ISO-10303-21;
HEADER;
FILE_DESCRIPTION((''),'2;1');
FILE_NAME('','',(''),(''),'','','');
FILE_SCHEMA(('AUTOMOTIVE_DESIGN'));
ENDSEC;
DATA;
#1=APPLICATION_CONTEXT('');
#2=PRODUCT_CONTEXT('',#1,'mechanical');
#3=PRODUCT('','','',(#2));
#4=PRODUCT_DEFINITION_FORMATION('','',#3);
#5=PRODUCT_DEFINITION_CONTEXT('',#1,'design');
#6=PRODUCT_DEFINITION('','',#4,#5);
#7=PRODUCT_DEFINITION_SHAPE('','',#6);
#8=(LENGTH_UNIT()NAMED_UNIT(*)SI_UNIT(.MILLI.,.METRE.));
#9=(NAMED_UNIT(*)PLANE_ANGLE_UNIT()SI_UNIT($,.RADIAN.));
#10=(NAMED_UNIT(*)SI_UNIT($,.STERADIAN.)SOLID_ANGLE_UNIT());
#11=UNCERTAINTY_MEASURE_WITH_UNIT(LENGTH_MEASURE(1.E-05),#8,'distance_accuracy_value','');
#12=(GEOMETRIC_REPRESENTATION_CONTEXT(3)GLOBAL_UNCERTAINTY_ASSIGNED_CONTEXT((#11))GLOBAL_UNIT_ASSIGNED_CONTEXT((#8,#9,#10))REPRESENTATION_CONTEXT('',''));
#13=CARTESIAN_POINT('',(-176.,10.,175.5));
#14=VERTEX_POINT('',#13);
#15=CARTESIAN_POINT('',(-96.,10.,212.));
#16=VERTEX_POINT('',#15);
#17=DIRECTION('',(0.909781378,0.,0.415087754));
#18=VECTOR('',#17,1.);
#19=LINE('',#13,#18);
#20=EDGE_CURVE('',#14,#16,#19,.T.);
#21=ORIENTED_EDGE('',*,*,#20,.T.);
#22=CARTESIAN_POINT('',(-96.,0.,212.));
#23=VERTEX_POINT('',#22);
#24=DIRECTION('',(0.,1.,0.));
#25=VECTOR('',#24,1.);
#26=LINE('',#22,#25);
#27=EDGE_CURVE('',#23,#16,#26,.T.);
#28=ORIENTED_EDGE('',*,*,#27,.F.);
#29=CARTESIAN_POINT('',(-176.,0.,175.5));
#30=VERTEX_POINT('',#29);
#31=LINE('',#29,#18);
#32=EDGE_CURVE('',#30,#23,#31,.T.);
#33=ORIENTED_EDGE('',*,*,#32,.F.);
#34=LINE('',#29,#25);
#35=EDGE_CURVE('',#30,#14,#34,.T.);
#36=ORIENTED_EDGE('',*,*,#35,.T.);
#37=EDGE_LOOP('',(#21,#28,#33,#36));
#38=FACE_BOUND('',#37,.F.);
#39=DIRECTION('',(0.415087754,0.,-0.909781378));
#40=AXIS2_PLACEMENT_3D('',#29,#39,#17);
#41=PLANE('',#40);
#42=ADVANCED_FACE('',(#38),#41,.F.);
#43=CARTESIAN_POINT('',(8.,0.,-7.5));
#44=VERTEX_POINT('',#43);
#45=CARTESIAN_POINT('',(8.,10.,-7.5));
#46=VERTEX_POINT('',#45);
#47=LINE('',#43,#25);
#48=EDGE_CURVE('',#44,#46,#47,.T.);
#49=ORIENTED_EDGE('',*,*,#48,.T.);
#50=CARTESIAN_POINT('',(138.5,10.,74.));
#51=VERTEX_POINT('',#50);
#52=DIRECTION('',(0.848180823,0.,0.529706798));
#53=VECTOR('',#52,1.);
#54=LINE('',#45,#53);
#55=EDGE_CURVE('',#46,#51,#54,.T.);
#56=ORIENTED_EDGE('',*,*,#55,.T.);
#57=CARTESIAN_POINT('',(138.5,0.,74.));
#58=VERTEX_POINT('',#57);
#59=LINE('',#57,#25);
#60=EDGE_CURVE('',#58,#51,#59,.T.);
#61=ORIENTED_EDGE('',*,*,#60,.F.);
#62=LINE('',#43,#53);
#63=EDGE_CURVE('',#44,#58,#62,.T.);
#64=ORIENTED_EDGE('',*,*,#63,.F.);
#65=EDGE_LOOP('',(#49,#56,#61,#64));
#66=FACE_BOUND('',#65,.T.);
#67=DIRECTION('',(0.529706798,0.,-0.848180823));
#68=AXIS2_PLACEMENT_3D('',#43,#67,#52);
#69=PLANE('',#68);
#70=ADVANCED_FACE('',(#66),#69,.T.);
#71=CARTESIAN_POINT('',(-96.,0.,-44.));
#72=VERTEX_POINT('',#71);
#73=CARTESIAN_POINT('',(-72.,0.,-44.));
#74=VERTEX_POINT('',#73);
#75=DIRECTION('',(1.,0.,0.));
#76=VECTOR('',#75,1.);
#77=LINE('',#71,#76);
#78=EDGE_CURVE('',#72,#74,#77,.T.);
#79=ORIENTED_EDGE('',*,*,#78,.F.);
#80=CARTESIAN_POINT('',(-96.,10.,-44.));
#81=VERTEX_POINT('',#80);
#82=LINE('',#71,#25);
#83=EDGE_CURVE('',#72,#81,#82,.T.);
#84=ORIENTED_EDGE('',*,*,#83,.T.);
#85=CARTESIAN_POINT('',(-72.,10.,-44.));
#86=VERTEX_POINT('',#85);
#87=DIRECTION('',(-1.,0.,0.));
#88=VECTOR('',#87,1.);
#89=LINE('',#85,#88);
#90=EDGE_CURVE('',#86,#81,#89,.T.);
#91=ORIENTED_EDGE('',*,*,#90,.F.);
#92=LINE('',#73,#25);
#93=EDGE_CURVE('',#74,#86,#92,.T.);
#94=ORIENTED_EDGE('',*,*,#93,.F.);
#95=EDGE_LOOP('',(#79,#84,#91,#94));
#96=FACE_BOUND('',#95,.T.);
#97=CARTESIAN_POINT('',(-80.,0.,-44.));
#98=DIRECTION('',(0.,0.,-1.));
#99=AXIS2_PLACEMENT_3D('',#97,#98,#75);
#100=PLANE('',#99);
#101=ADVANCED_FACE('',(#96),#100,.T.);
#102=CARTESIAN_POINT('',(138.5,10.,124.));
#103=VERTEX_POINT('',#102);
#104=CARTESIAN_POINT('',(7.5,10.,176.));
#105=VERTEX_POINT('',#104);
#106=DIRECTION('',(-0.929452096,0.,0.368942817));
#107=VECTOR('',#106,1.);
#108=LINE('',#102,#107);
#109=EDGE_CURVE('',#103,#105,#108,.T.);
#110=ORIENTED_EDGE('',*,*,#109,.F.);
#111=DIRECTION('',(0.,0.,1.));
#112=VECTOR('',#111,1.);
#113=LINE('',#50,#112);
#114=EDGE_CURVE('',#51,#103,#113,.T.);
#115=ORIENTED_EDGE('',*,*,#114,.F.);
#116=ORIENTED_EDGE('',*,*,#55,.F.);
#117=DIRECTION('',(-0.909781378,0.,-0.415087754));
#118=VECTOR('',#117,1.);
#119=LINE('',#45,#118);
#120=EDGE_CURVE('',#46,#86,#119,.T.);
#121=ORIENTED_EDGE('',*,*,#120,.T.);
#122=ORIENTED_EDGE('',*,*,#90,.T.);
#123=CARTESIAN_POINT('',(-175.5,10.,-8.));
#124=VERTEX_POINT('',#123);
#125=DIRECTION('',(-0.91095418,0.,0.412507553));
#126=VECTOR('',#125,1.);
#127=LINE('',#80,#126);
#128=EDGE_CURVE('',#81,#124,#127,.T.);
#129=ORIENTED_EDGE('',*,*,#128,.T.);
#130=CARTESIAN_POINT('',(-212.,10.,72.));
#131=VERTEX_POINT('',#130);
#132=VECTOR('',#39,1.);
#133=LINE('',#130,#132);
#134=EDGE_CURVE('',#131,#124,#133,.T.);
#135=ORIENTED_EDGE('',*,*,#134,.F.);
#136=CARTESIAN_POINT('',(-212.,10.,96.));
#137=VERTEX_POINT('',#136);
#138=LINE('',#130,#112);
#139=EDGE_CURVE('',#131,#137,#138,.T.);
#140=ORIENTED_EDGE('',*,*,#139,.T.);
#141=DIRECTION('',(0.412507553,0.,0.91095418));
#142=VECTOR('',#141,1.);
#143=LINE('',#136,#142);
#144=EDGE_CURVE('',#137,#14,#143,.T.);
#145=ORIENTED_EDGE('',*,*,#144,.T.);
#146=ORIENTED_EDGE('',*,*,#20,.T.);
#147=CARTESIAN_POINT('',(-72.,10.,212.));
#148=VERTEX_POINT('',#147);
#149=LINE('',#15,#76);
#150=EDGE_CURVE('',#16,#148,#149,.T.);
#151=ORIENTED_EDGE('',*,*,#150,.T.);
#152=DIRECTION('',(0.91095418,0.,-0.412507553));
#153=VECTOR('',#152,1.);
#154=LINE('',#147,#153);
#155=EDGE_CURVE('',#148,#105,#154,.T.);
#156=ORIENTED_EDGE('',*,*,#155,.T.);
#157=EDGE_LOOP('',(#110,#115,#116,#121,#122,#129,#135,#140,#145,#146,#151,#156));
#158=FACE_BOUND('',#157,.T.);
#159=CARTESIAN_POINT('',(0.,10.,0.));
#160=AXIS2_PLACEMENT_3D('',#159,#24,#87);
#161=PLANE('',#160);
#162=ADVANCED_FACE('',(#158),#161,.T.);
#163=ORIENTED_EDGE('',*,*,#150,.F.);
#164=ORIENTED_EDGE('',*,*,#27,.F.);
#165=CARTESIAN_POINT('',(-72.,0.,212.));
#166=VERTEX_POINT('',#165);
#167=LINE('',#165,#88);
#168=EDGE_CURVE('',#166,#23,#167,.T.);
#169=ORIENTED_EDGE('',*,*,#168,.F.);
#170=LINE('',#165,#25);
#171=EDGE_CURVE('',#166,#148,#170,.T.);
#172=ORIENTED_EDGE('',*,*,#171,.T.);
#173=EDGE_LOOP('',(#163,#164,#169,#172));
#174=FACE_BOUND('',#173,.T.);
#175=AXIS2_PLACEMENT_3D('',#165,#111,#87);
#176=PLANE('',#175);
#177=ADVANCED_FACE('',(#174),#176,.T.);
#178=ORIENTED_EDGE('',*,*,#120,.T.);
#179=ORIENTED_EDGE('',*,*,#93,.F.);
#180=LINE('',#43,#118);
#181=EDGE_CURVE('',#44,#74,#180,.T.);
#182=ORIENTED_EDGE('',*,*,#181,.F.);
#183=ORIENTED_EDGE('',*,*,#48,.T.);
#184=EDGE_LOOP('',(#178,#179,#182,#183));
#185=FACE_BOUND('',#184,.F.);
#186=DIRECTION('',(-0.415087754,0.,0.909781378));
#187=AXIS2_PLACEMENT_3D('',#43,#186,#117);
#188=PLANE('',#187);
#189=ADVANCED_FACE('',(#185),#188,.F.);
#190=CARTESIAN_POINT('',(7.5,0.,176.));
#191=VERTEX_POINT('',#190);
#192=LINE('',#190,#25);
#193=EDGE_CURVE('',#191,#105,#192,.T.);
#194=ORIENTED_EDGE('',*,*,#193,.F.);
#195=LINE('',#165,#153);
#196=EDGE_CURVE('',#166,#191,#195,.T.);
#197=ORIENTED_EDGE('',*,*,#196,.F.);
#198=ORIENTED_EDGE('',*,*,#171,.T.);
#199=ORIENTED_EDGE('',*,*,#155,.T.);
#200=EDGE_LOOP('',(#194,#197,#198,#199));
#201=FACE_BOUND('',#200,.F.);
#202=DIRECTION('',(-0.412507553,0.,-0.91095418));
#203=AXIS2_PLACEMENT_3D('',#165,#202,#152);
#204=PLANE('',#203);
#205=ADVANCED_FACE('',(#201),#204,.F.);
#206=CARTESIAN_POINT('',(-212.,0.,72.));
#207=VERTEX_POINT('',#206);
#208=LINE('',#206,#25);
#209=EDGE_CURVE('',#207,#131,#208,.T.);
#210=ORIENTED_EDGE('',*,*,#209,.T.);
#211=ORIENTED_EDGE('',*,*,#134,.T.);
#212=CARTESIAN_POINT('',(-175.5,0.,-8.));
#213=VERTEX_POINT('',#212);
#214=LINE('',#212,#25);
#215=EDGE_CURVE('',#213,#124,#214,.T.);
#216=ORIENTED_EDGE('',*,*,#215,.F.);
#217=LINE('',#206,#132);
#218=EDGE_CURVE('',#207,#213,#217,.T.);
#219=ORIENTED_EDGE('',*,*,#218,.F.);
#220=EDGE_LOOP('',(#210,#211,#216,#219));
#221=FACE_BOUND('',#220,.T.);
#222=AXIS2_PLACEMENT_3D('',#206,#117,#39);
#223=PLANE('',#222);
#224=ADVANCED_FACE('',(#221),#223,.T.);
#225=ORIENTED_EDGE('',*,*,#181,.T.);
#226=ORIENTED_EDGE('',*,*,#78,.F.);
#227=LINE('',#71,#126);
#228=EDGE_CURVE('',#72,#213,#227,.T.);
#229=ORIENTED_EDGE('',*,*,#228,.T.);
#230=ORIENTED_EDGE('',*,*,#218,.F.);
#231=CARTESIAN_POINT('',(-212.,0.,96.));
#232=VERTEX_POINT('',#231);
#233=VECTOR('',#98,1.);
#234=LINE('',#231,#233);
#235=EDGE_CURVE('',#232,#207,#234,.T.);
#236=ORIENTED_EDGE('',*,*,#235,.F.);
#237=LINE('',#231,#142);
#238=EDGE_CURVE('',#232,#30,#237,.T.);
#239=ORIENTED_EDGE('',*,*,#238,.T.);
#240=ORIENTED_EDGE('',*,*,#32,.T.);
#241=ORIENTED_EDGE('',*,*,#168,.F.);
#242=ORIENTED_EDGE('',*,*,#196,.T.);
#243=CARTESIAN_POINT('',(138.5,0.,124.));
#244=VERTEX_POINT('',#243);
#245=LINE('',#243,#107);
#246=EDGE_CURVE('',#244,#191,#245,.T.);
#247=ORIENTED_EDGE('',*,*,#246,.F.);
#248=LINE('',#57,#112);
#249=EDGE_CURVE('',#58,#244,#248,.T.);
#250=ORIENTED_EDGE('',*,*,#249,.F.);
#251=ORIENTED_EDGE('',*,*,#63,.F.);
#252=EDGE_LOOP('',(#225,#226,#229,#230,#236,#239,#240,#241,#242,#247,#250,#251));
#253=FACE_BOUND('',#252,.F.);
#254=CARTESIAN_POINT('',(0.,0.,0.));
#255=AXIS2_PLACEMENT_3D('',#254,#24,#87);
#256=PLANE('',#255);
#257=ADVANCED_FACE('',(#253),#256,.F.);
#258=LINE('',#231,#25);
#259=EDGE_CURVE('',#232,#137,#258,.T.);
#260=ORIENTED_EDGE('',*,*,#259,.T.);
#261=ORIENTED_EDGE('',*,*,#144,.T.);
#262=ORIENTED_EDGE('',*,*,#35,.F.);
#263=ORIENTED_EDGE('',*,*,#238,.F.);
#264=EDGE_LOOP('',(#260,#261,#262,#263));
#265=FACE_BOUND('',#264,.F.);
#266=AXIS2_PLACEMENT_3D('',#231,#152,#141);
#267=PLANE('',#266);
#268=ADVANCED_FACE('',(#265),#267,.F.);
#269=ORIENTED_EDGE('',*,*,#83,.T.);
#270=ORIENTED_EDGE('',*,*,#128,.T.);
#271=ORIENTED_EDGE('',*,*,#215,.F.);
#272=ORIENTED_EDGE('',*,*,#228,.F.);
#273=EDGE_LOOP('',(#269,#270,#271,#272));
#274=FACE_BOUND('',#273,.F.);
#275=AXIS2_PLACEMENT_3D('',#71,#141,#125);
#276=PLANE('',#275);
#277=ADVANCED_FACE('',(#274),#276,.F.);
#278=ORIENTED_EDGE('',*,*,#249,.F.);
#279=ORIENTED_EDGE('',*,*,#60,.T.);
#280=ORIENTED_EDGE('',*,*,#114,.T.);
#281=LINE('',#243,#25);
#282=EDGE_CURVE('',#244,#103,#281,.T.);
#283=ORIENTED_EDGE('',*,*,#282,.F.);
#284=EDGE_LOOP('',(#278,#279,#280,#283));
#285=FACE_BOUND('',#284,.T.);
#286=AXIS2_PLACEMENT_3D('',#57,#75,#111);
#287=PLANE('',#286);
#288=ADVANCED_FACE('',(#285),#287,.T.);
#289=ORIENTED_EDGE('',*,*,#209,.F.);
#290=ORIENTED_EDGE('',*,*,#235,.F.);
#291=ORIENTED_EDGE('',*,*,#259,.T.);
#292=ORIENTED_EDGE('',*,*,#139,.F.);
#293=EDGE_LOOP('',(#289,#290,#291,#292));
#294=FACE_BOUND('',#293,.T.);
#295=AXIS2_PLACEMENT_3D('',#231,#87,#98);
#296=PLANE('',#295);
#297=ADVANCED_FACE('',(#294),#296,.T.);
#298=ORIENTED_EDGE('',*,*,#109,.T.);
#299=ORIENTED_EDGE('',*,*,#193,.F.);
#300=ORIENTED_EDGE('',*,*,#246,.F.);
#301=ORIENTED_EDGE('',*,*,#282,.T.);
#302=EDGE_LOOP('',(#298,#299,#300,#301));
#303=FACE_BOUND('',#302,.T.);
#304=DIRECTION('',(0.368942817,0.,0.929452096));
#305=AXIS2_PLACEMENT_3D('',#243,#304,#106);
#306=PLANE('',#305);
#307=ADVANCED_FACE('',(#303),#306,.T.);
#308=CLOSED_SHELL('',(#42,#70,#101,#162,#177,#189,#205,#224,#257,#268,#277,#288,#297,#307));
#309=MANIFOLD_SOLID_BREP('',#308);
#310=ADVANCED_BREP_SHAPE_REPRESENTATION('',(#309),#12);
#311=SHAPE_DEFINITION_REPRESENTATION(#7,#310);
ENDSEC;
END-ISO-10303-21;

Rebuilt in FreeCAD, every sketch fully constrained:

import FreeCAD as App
import Part
import Sketcher

V = App.Vector
Q = App.Units.Quantity


def add_polygon(sketch, points):
    """Adds a closed chain of lines whose ends are joined by coincident constraints."""
    first, n = sketch.GeometryCount, len(points)
    for a, b in zip(points, points[1:] + points[:1]):
        sketch.addGeometry(Part.LineSegment(App.Vector(*a, 0), App.Vector(*b, 0)), False)
    for i in range(n):
        sketch.addConstraint(Sketcher.Constraint("Coincident", first + i, 2, first + (i + 1) % n, 1))

doc = App.newDocument("Part")
body = doc.addObject("PartDesign::Body", "Body")

# Sketch on XZ plane
sketch1 = body.newObject("Sketcher::SketchObject", "Sketch")
sketch1.AttachmentSupport = (doc.getObject("XZ_Plane"), [""])
sketch1.MapMode = "FlatFace"
add_polygon(sketch1, [(138, 74), (8, -8), (-72, -44), (-96, -44), (-176, -8), (-212, 72), (-212, 96), (-176, 176), (-96, 212), (-72, 212), (8, 176), (138, 124)])  # lines 0-11
sketch1.addConstraint([
    Sketcher.Constraint("Horizontal", 2),
    Sketcher.Constraint("Vertical", 5),
    Sketcher.Constraint("Horizontal", 8),
    Sketcher.Constraint("Vertical", 11),
    Sketcher.Constraint("Perpendicular", 1, 4),
    Sketcher.Constraint("Perpendicular", 3, 6),
    Sketcher.Constraint("Perpendicular", 4, 7),
    Sketcher.Constraint("Perpendicular", 6, 9),
    Sketcher.Constraint("Vertical", 2, 2, 7, 2),
    Sketcher.Constraint("Vertical", 1, 2, 8, 2),
    Sketcher.Constraint("Equal", 8, 5),
    Sketcher.Constraint("Equal", 1, 4),
    Sketcher.Constraint("Equal", 3, 6),
    Sketcher.Constraint("Equal", 4, 7),
    Sketcher.Constraint("Equal", 6, 9),
    Sketcher.Constraint("DistanceX", 2, 2, 2, 1, Q("24 mm")),
    Sketcher.Constraint("DistanceY", 11, 2, 11, 1, Q("50 mm")),
    Sketcher.Constraint("DistanceX", -1, 1, 0, 2, Q("8 mm")),
    Sketcher.Constraint("DistanceX", 1, 2, -1, 1, Q("72 mm")),
    Sketcher.Constraint("DistanceY", 1, 2, -1, 1, Q("44 mm")),
    Sketcher.Constraint("DistanceY", 3, 2, -1, 1, Q("8 mm")),
    Sketcher.Constraint("DistanceY", -1, 1, 10, 2, Q("124 mm")),
    Sketcher.Constraint("DistanceX", 9, 2, 10, 2, Q("131 mm")),
    Sketcher.Constraint("DistanceY", 0, 2, -1, 1, Q("7.5 mm")),
])
pad1 = body.newObject("PartDesign::Pad", "Pad")
pad1.Profile = sketch1
pad1.Length = 10
pad1.Reversed = True

doc.recompute()
